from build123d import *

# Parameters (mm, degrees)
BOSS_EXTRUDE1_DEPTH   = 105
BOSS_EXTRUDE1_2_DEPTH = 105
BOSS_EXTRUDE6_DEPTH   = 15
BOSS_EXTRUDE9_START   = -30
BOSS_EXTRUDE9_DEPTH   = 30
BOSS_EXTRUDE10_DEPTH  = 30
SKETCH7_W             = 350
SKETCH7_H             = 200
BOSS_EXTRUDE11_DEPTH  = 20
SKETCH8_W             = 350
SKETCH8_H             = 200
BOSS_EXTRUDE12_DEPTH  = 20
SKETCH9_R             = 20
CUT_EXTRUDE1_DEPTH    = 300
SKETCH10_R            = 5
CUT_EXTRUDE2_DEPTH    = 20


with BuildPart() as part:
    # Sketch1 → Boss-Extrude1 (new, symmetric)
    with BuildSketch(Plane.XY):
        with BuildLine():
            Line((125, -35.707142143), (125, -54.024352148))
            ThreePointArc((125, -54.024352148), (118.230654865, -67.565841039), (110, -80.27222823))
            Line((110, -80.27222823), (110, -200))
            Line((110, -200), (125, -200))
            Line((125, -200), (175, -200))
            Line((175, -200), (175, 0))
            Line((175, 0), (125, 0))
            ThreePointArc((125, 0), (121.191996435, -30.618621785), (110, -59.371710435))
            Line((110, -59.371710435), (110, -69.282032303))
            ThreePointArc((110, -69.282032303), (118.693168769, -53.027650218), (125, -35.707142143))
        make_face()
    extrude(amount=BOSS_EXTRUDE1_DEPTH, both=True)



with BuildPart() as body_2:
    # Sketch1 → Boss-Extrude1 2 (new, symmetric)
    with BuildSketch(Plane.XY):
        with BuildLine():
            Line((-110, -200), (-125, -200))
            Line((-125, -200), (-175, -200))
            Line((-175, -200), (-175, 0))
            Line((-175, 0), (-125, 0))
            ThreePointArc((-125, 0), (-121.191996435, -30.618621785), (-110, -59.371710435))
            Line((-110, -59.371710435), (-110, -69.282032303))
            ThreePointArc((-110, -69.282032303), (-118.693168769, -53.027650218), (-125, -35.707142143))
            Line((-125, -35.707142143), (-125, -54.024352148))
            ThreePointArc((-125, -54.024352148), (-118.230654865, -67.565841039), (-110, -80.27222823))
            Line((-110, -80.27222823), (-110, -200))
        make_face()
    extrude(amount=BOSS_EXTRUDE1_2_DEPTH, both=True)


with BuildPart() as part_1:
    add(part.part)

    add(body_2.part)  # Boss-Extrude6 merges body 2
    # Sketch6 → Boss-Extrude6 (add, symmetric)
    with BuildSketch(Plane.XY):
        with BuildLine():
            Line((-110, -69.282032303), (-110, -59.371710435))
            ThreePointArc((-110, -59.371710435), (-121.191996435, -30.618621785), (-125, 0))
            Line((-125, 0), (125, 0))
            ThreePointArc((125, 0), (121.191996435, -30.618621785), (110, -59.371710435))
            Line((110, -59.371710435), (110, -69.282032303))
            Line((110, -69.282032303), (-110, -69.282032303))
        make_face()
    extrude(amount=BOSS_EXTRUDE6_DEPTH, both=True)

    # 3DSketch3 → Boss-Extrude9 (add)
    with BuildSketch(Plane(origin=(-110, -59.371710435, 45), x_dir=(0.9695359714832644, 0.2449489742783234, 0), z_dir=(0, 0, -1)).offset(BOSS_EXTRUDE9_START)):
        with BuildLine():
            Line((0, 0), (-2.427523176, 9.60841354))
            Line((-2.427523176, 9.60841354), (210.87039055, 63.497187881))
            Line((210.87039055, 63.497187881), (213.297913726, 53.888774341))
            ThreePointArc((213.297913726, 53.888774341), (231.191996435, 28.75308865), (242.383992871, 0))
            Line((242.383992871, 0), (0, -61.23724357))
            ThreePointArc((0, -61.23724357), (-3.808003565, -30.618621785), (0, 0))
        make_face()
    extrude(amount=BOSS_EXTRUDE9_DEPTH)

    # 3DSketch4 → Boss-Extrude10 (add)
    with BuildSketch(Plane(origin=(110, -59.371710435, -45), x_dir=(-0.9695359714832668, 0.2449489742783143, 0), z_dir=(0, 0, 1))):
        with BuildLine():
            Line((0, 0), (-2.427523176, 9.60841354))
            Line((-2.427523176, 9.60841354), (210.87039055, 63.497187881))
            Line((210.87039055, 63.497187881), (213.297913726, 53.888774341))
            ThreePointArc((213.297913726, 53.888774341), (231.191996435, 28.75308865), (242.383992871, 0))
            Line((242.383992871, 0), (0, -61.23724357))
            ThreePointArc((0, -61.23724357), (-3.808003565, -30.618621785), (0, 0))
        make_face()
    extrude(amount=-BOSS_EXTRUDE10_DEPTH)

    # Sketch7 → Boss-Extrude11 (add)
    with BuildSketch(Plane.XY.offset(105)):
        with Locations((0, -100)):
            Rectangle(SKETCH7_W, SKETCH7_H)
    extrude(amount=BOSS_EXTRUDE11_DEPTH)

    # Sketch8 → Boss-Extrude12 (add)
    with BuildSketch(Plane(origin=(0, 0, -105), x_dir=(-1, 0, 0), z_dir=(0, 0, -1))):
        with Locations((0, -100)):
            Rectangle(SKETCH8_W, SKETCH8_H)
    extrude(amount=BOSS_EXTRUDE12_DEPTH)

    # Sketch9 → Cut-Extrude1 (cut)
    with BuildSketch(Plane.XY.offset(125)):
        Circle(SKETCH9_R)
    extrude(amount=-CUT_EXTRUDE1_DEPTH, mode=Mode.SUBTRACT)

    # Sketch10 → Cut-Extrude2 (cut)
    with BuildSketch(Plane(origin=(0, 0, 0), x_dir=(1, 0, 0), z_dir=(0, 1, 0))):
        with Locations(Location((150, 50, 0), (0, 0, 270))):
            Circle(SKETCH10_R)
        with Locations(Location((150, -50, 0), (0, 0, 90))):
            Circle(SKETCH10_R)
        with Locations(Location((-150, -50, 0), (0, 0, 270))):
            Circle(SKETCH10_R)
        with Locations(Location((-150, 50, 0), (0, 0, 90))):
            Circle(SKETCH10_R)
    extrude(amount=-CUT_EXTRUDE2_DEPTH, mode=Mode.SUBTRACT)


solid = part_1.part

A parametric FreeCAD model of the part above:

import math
import FreeCAD as App
import Part
import Sketcher

V = App.Vector

doc = App.newDocument("Part")
params = doc.addObject("Spreadsheet::Sheet", "Params")
for row, (alias, value) in enumerate([
    ("sketch1_radius", "125 mm"),
    ("sketch1_radius2", "130 mm"),
    ("sketch1_width", "65 mm"),
    ("sketch1_width2", "50 mm"),
    ("sketch1_height", "200 mm"),
    ("pad1_length", "210 mm"),
    ("sketch2_radius", "130 mm"),
    ("sketch2_radius2", "125 mm"),
    ("sketch2_width", "65 mm"),
    ("sketch2_width2", "50 mm"),
    ("sketch2_height", "200 mm"),
    ("pad2_length", "210 mm"),
    ("sketch3_radius", "125 mm"),
    ("sketch3_width", "220 mm"),
    ("pad3_length", "30 mm"),
    ("sketch4_radius", "125 mm"),
    ("sketch4_width", "220 mm"),
    ("pad4_length", "30 mm"),
    ("sketch5_radius", "125 mm"),
    ("sketch5_width", "220 mm"),
    ("pad5_length", "30 mm"),
    ("sketch6_width", "350 mm"),
    ("sketch6_height", "200 mm"),
    ("pad6_length", "20 mm"),
    ("sketch7_width", "350 mm"),
    ("sketch7_height", "200 mm"),
    ("pad7_length", "20 mm"),
    ("sketch8_diameter", "40 mm"),
    ("pocket1_length", "300 mm"),
    ("sketch9_diameter", "10 mm"),
    ("pocket2_length", "20 mm"),
], start=1):
    params.set(f"A{row}", alias)
    params.set(f"B{row}", "=" + value)
    params.setAlias(f"B{row}", alias)

body = doc.addObject("PartDesign::Body", "Body")

sketch1 = doc.addObject("Sketcher::SketchObject", "Sketch")
body.addObject(sketch1)
sketch1.AttachmentSupport = (doc.XY_Plane, [""])
sketch1.MapMode = "FlatFace"
sketch1.addGeometry(Part.LineSegment(V(125, -36, 0), V(125, -54, 0)), False)
sketch1.addGeometry(Part.ArcOfCircle(Part.Circle(V(0, 0, 0), V(0, 0, 1), 136), math.radians(-36.12), math.radians(-23.37)), False)
sketch1.addGeometry(Part.LineSegment(V(110, -80, 0), V(110, -200, 0)), False)
sketch1.addGeometry(Part.LineSegment(V(110, -200, 0), V(175, -200, 0)), False)
sketch1.addGeometry(Part.LineSegment(V(175, -200, 0), V(175, 0, 0)), False)
sketch1.addGeometry(Part.LineSegment(V(175, 0, 0), V(125, 0, 0)), False)
sketch1.addGeometry(Part.ArcOfCircle(Part.Circle(V(0, 0, 0), V(0, 0, 1), 125), math.radians(-28), math.radians(0)), False)
sketch1.addGeometry(Part.LineSegment(V(110, -59, 0), V(110, -69, 0)), False)
sketch1.addGeometry(Part.ArcOfCircle(Part.Circle(V(0, 0, 0), V(0, 0, 1), 130), math.radians(-32.2), math.radians(-15.94)), False)
sketch1.addConstraint(Sketcher.Constraint("Coincident", 0, 2, 1, 2))
sketch1.addConstraint(Sketcher.Constraint("Coincident", 1, 1, 2, 1))
sketch1.addConstraint(Sketcher.Constraint("Coincident", 2, 2, 3, 1))
sketch1.addConstraint(Sketcher.Constraint("Coincident", 3, 2, 4, 1))
sketch1.addConstraint(Sketcher.Constraint("Coincident", 4, 2, 5, 1))
sketch1.addConstraint(Sketcher.Constraint("Coincident", 5, 2, 6, 2))
sketch1.addConstraint(Sketcher.Constraint("Coincident", 6, 1, 7, 1))
sketch1.addConstraint(Sketcher.Constraint("Coincident", 7, 2, 8, 1))
sketch1.addConstraint(Sketcher.Constraint("Coincident", 8, 2, 0, 1))
sketch1.addConstraint(Sketcher.Constraint("Vertical", 0))
sketch1.addConstraint(Sketcher.Constraint("Vertical", 2))
sketch1.addConstraint(Sketcher.Constraint("Horizontal", 3))
sketch1.addConstraint(Sketcher.Constraint("Vertical", 4))
sketch1.addConstraint(Sketcher.Constraint("Horizontal", 5))
sketch1.addConstraint(Sketcher.Constraint("Vertical", 7))
sketch1.addConstraint(Sketcher.Constraint("Coincident", 1, 3, -1, 1))
sketch1.addConstraint(Sketcher.Constraint("Coincident", 6, 3, -1, 1))
sketch1.addConstraint(Sketcher.Constraint("Coincident", 8, 3, -1, 1))
sketch1.addConstraint(Sketcher.Constraint("PointOnObject", 4, 2, -1))
sketch1.addConstraint(Sketcher.Constraint("Vertical", 0, 2, 5, 2))
sketch1.addConstraint(Sketcher.Constraint("Vertical", 2, 2, 6, 1))
sketch1.addConstraint(Sketcher.Constraint("Radius", 6, 125.0))
sketch1.addConstraint(Sketcher.Constraint("Radius", 8, 130.0))
sketch1.addConstraint(Sketcher.Constraint("DistanceX", 3, 1, 3, 2, 65.0))
sketch1.addConstraint(Sketcher.Constraint("DistanceX", 5, 2, 5, 1, 50.0))
sketch1.addConstraint(Sketcher.Constraint("DistanceY", 4, 1, 4, 2, 200.0))
sketch1.addConstraint(Sketcher.Constraint("Radius", 1, 136.175))
sketch1.setExpression("Constraints[21]", "Params.sketch1_radius")
sketch1.setExpression("Constraints[22]", "Params.sketch1_radius2")
sketch1.setExpression("Constraints[23]", "Params.sketch1_width")
sketch1.setExpression("Constraints[24]", "Params.sketch1_width2")
sketch1.setExpression("Constraints[25]", "Params.sketch1_height")
pad1 = doc.addObject("PartDesign::Pad", "Pad")
body.addObject(pad1)
pad1.Profile = sketch1
pad1.setExpression("Length", "Params.pad1_length")
pad1.Midplane = True
body2 = doc.addObject("PartDesign::Body", "Body001")

sketch2 = doc.addObject("Sketcher::SketchObject", "Sketch001")
body2.addObject(sketch2)
sketch2.AttachmentSupport = (doc.getObject("XY_Plane001"), [""])
sketch2.MapMode = "FlatFace"
sketch2.addGeometry(Part.LineSegment(V(-175, -200, 0), V(-110, -200, 0)), False)
sketch2.addGeometry(Part.LineSegment(V(-110, -200, 0), V(-110, -80, 0)), False)
sketch2.addGeometry(Part.ArcOfCircle(Part.Circle(V(0, 0, 0), V(0, 0, 1), 136), math.radians(-156.63), math.radians(-143.88)), False)
sketch2.addGeometry(Part.LineSegment(V(-125, -54, 0), V(-125, -36, 0)), False)
sketch2.addGeometry(Part.ArcOfCircle(Part.Circle(V(0, 0, 0), V(0, 0, 1), 130), math.radians(-164.06), math.radians(-147.8)), False)
sketch2.addGeometry(Part.LineSegment(V(-110, -69, 0), V(-110, -59, 0)), False)
sketch2.addGeometry(Part.ArcOfCircle(Part.Circle(V(0, 0, 0), V(0, 0, 1), 125), math.radians(-180), math.radians(-152)), False)
sketch2.addGeometry(Part.LineSegment(V(-125, 0, 0), V(-175, 0, 0)), False)
sketch2.addGeometry(Part.LineSegment(V(-175, 0, 0), V(-175, -200, 0)), False)
sketch2.addConstraint(Sketcher.Constraint("Coincident", 0, 2, 1, 1))
sketch2.addConstraint(Sketcher.Constraint("Coincident", 1, 2, 2, 2))
sketch2.addConstraint(Sketcher.Constraint("Coincident", 2, 1, 3, 1))
sketch2.addConstraint(Sketcher.Constraint("Coincident", 3, 2, 4, 1))
sketch2.addConstraint(Sketcher.Constraint("Coincident", 4, 2, 5, 1))
sketch2.addConstraint(Sketcher.Constraint("Coincident", 5, 2, 6, 2))
sketch2.addConstraint(Sketcher.Constraint("Coincident", 6, 1, 7, 1))
sketch2.addConstraint(Sketcher.Constraint("Coincident", 7, 2, 8, 1))
sketch2.addConstraint(Sketcher.Constraint("Coincident", 8, 2, 0, 1))
sketch2.addConstraint(Sketcher.Constraint("Horizontal", 0))
sketch2.addConstraint(Sketcher.Constraint("Vertical", 1))
sketch2.addConstraint(Sketcher.Constraint("Vertical", 3))
sketch2.addConstraint(Sketcher.Constraint("Vertical", 5))
sketch2.addConstraint(Sketcher.Constraint("Horizontal", 7))
sketch2.addConstraint(Sketcher.Constraint("Vertical", 8))
sketch2.addConstraint(Sketcher.Constraint("Coincident", 2, 3, -1, 1))
sketch2.addConstraint(Sketcher.Constraint("Coincident", 4, 3, -1, 1))
sketch2.addConstraint(Sketcher.Constraint("Coincident", 6, 3, -1, 1))
sketch2.addConstraint(Sketcher.Constraint("PointOnObject", 6, 1, -1))
sketch2.addConstraint(Sketcher.Constraint("Vertical", 1, 2, 4, 2))
sketch2.addConstraint(Sketcher.Constraint("Vertical", 3, 2, 6, 1))
sketch2.addConstraint(Sketcher.Constraint("Radius", 4, 130.0))
sketch2.addConstraint(Sketcher.Constraint("Radius", 6, 125.0))
sketch2.addConstraint(Sketcher.Constraint("DistanceX", 0, 1, 0, 2, 65.0))
sketch2.addConstraint(Sketcher.Constraint("DistanceX", 7, 2, 7, 1, 50.0))
sketch2.addConstraint(Sketcher.Constraint("DistanceY", 8, 2, 8, 1, 200.0))
sketch2.addConstraint(Sketcher.Constraint("Radius", 2, 136.175))
sketch2.setExpression("Constraints[21]", "Params.sketch2_radius")
sketch2.setExpression("Constraints[22]", "Params.sketch2_radius2")
sketch2.setExpression("Constraints[23]", "Params.sketch2_width")
sketch2.setExpression("Constraints[24]", "Params.sketch2_width2")
sketch2.setExpression("Constraints[25]", "Params.sketch2_height")
pad2 = doc.addObject("PartDesign::Pad", "Pad001")
body2.addObject(pad2)
pad2.Profile = sketch2
pad2.setExpression("Length", "Params.pad2_length")
pad2.Midplane = True
body.AllowCompound = True
doc.recompute()

boolean = doc.addObject("PartDesign::Boolean", "Boolean")
body.addObject(boolean)
boolean.Type = "Fuse"
boolean.addObjects([body2])

sketch3 = doc.addObject("Sketcher::SketchObject", "Sketch002")
body.addObject(sketch3)
sketch3.AttachmentSupport = (doc.XY_Plane, [""])
sketch3.MapMode = "FlatFace"
sketch3.addGeometry(Part.LineSegment(V(-110, -59, 0), V(-110, -69, 0)), False)
sketch3.addGeometry(Part.LineSegment(V(-110, -69, 0), V(110, -69, 0)), False)
sketch3.addGeometry(Part.LineSegment(V(110, -69, 0), V(110, -59, 0)), False)
sketch3.addGeometry(Part.ArcOfCircle(Part.Circle(V(0, 0, 0), V(0, 0, 1), 125), math.radians(-28), math.radians(0)), False)
sketch3.addGeometry(Part.LineSegment(V(125, 0, 0), V(-125, 0, 0)), False)
sketch3.addGeometry(Part.ArcOfCircle(Part.Circle(V(0, 0, 0), V(0, 0, 1), 125), math.radians(-180), math.radians(-152)), False)
sketch3.addConstraint(Sketcher.Constraint("Coincident", 0, 2, 1, 1))
sketch3.addConstraint(Sketcher.Constraint("Coincident", 1, 2, 2, 1))
sketch3.addConstraint(Sketcher.Constraint("Coincident", 2, 2, 3, 1))
sketch3.addConstraint(Sketcher.Constraint("Coincident", 3, 2, 4, 1))
sketch3.addConstraint(Sketcher.Constraint("Coincident", 4, 2, 5, 1))
sketch3.addConstraint(Sketcher.Constraint("Coincident", 5, 2, 0, 1))
sketch3.addConstraint(Sketcher.Constraint("Vertical", 0))
sketch3.addConstraint(Sketcher.Constraint("Horizontal", 1))
sketch3.addConstraint(Sketcher.Constraint("Vertical", 2))
sketch3.addConstraint(Sketcher.Constraint("Horizontal", 4))
sketch3.addConstraint(Sketcher.Constraint("Coincident", 3, 3, -1, 1))
sketch3.addConstraint(Sketcher.Constraint("Coincident", 5, 3, -1, 1))
sketch3.addConstraint(Sketcher.Constraint("Equal", 3, 5))
sketch3.addConstraint(Sketcher.Constraint("PointOnObject", 3, 2, -1))
sketch3.addConstraint(Sketcher.Constraint("Horizontal", 2, 2, 5, 2))
sketch3.addConstraint(Sketcher.Constraint("Radius", 3, 125.0))
sketch3.addConstraint(Sketcher.Constraint("DistanceX", 1, 1, 1, 2, 220.0))
sketch3.addConstraint(Sketcher.Constraint("DistanceY", 0, 2, 0, 1, 9.910322))
sketch3.setExpression("Constraints[15]", "Params.sketch3_radius")
sketch3.setExpression("Constraints[16]", "Params.sketch3_width")
pad3 = doc.addObject("PartDesign::Pad", "Pad002")
body.addObject(pad3)
pad3.Profile = sketch3
pad3.setExpression("Length", "Params.pad3_length")
pad3.Midplane = True

sketch4 = doc.addObject("Sketcher::SketchObject", "Sketch003")
body.addObject(sketch4)
sketch4.AttachmentSupport = (doc.XY_Plane, [""])
sketch4.MapMode = "FlatFace"
sketch4.AttachmentOffset = App.Placement(V(0, 0, 75), App.Rotation())
sketch4.addGeometry(Part.LineSegment(V(-110, -69, 0), V(-110, -59, 0)), False)
sketch4.addGeometry(Part.ArcOfCircle(Part.Circle(V(0, 0, 0), V(0, 0, 1), 125), math.radians(180), math.radians(208)), False)
sketch4.addGeometry(Part.LineSegment(V(-125, 0, 0), V(125, 0, 0)), False)
sketch4.addGeometry(Part.ArcOfCircle(Part.Circle(V(0, 0, 0), V(0, 0, 1), 125), math.radians(-28), math.radians(0)), False)
sketch4.addGeometry(Part.LineSegment(V(110, -59, 0), V(110, -69, 0)), False)
sketch4.addGeometry(Part.LineSegment(V(110, -69, 0), V(-110, -69, 0)), False)
sketch4.addConstraint(Sketcher.Constraint("Coincident", 0, 2, 1, 2))
sketch4.addConstraint(Sketcher.Constraint("Coincident", 1, 1, 2, 1))
sketch4.addConstraint(Sketcher.Constraint("Coincident", 2, 2, 3, 2))
sketch4.addConstraint(Sketcher.Constraint("Coincident", 3, 1, 4, 1))
sketch4.addConstraint(Sketcher.Constraint("Coincident", 4, 2, 5, 1))
sketch4.addConstraint(Sketcher.Constraint("Coincident", 5, 2, 0, 1))
sketch4.addConstraint(Sketcher.Constraint("Vertical", 0))
sketch4.addConstraint(Sketcher.Constraint("Horizontal", 2))
sketch4.addConstraint(Sketcher.Constraint("Vertical", 4))
sketch4.addConstraint(Sketcher.Constraint("Horizontal", 5))
sketch4.addConstraint(Sketcher.Constraint("Coincident", 1, 3, -1, 1))
sketch4.addConstraint(Sketcher.Constraint("Coincident", 3, 3, -1, 1))
sketch4.addConstraint(Sketcher.Constraint("Equal", 1, 3))
sketch4.addConstraint(Sketcher.Constraint("PointOnObject", 1, 1, -1))
sketch4.addConstraint(Sketcher.Constraint("Horizontal", 0, 2, 3, 1))
sketch4.addConstraint(Sketcher.Constraint("Radius", 1, 125.0))
sketch4.addConstraint(Sketcher.Constraint("DistanceX", 5, 2, 5, 1, 220.0))
sketch4.addConstraint(Sketcher.Constraint("DistanceY", 0, 1, 0, 2, 9.910322))
sketch4.setExpression("Constraints[15]", "Params.sketch4_radius")
sketch4.setExpression("Constraints[16]", "Params.sketch4_width")
pad4 = doc.addObject("PartDesign::Pad", "Pad003")
body.addObject(pad4)
pad4.Profile = sketch4
pad4.setExpression("Length", "Params.pad4_length")
pad4.Reversed = True

sketch5 = doc.addObject("Sketcher::SketchObject", "Sketch004")
body.addObject(sketch5)
sketch5.AttachmentSupport = (doc.XY_Plane, [""])
sketch5.MapMode = "FlatFace"
sketch5.AttachmentOffset = App.Placement(V(0, 0, -45), App.Rotation())
sketch5.addGeometry(Part.LineSegment(V(110, -69, 0), V(110, -59, 0)), False)
sketch5.addGeometry(Part.ArcOfCircle(Part.Circle(V(0, 0, 0), V(0, 0, 1), 125), math.radians(-28), math.radians(0)), False)
sketch5.addGeometry(Part.LineSegment(V(125, 0, 0), V(-125, 0, 0)), False)
sketch5.addGeometry(Part.ArcOfCircle(Part.Circle(V(0, 0, 0), V(0, 0, 1), 125), math.radians(-180), math.radians(-152)), False)
sketch5.addGeometry(Part.LineSegment(V(-110, -59, 0), V(-110, -69, 0)), False)
sketch5.addGeometry(Part.LineSegment(V(-110, -69, 0), V(110, -69, 0)), False)
sketch5.addConstraint(Sketcher.Constraint("Coincident", 0, 2, 1, 1))
sketch5.addConstraint(Sketcher.Constraint("Coincident", 1, 2, 2, 1))
sketch5.addConstraint(Sketcher.Constraint("Coincident", 2, 2, 3, 1))
sketch5.addConstraint(Sketcher.Constraint("Coincident", 3, 2, 4, 1))
sketch5.addConstraint(Sketcher.Constraint("Coincident", 4, 2, 5, 1))
sketch5.addConstraint(Sketcher.Constraint("Coincident", 5, 2, 0, 1))
sketch5.addConstraint(Sketcher.Constraint("Vertical", 0))
sketch5.addConstraint(Sketcher.Constraint("Horizontal", 2))
sketch5.addConstraint(Sketcher.Constraint("Vertical", 4))
sketch5.addConstraint(Sketcher.Constraint("Horizontal", 5))
sketch5.addConstraint(Sketcher.Constraint("Coincident", 1, 3, -1, 1))
sketch5.addConstraint(Sketcher.Constraint("Coincident", 3, 3, -1, 1))
sketch5.addConstraint(Sketcher.Constraint("Equal", 1, 3))
sketch5.addConstraint(Sketcher.Constraint("PointOnObject", 1, 2, -1))
sketch5.addConstraint(Sketcher.Constraint("Horizontal", 0, 2, 3, 2))
sketch5.addConstraint(Sketcher.Constraint("Radius", 1, 125.0))
sketch5.addConstraint(Sketcher.Constraint("DistanceX", 5, 1, 5, 2, 220.0))
sketch5.addConstraint(Sketcher.Constraint("DistanceY", 0, 1, 0, 2, 9.910322))
sketch5.setExpression("Constraints[15]", "Params.sketch5_radius")
sketch5.setExpression("Constraints[16]", "Params.sketch5_width")
pad5 = doc.addObject("PartDesign::Pad", "Pad004")
body.addObject(pad5)
pad5.Profile = sketch5
pad5.setExpression("Length", "Params.pad5_length")
pad5.Reversed = True

sketch6 = doc.addObject("Sketcher::SketchObject", "Sketch005")
body.addObject(sketch6)
sketch6.AttachmentSupport = (doc.XY_Plane, [""])
sketch6.MapMode = "FlatFace"
sketch6.AttachmentOffset = App.Placement(V(0, 0, 105), App.Rotation())
sketch6.addGeometry(Part.LineSegment(V(-175, 0, 0), V(-175, -200, 0)), False)
sketch6.addGeometry(Part.LineSegment(V(-175, -200, 0), V(175, -200, 0)), False)
sketch6.addGeometry(Part.LineSegment(V(175, -200, 0), V(175, 0, 0)), False)
sketch6.addGeometry(Part.LineSegment(V(175, 0, 0), V(-175, 0, 0)), False)
sketch6.addConstraint(Sketcher.Constraint("Coincident", 0, 2, 1, 1))
sketch6.addConstraint(Sketcher.Constraint("Coincident", 1, 2, 2, 1))
sketch6.addConstraint(Sketcher.Constraint("Coincident", 2, 2, 3, 1))
sketch6.addConstraint(Sketcher.Constraint("Coincident", 3, 2, 0, 1))
sketch6.addConstraint(Sketcher.Constraint("Vertical", 0))
sketch6.addConstraint(Sketcher.Constraint("Horizontal", 1))
sketch6.addConstraint(Sketcher.Constraint("Vertical", 2))
sketch6.addConstraint(Sketcher.Constraint("Horizontal", 3))
sketch6.addConstraint(Sketcher.Constraint("Symmetric", 2, 2, 3, 2, -1, 1))
sketch6.addConstraint(Sketcher.Constraint("DistanceX", 1, 1, 1, 2, 350.0))
sketch6.addConstraint(Sketcher.Constraint("DistanceY", 0, 2, 0, 1, 200.0))
sketch6.setExpression("Constraints[9]", "Params.sketch6_width")
sketch6.setExpression("Constraints[10]", "Params.sketch6_height")
pad6 = doc.addObject("PartDesign::Pad", "Pad005")
body.addObject(pad6)
pad6.Profile = sketch6
pad6.setExpression("Length", "Params.pad6_length")

sketch7 = doc.addObject("Sketcher::SketchObject", "Sketch006")
body.addObject(sketch7)
sketch7.AttachmentSupport = (doc.XY_Plane, [""])
sketch7.MapMode = "FlatFace"
sketch7.AttachmentOffset = App.Placement(V(0, 0, -105), App.Rotation())
sketch7.addGeometry(Part.LineSegment(V(175, 0, 0), V(175, -200, 0)), False)
sketch7.addGeometry(Part.LineSegment(V(175, -200, 0), V(-175, -200, 0)), False)
sketch7.addGeometry(Part.LineSegment(V(-175, -200, 0), V(-175, 0, 0)), False)
sketch7.addGeometry(Part.LineSegment(V(-175, 0, 0), V(175, 0, 0)), False)
sketch7.addConstraint(Sketcher.Constraint("Coincident", 0, 2, 1, 1))
sketch7.addConstraint(Sketcher.Constraint("Coincident", 1, 2, 2, 1))
sketch7.addConstraint(Sketcher.Constraint("Coincident", 2, 2, 3, 1))
sketch7.addConstraint(Sketcher.Constraint("Coincident", 3, 2, 0, 1))
sketch7.addConstraint(Sketcher.Constraint("Vertical", 0))
sketch7.addConstraint(Sketcher.Constraint("Horizontal", 1))
sketch7.addConstraint(Sketcher.Constraint("Vertical", 2))
sketch7.addConstraint(Sketcher.Constraint("Horizontal", 3))
sketch7.addConstraint(Sketcher.Constraint("Symmetric", 2, 2, 3, 2, -1, 1))
sketch7.addConstraint(Sketcher.Constraint("DistanceX", 1, 2, 1, 1, 350.0))
sketch7.addConstraint(Sketcher.Constraint("DistanceY", 0, 2, 0, 1, 200.0))
sketch7.setExpression("Constraints[9]", "Params.sketch7_width")
sketch7.setExpression("Constraints[10]", "Params.sketch7_height")
pad7 = doc.addObject("PartDesign::Pad", "Pad006")
body.addObject(pad7)
pad7.Profile = sketch7
pad7.setExpression("Length", "Params.pad7_length")
pad7.Reversed = True

sketch8 = doc.addObject("Sketcher::SketchObject", "Sketch007")
body.addObject(sketch8)
sketch8.AttachmentSupport = (doc.XY_Plane, [""])
sketch8.MapMode = "FlatFace"
sketch8.AttachmentOffset = App.Placement(V(0, 0, 125), App.Rotation())
sketch8.addGeometry(Part.Circle(V(0, 0, 0), V(0, 0, 1), 20), False)
sketch8.addConstraint(Sketcher.Constraint("Coincident", 0, 3, -1, 1))
sketch8.addConstraint(Sketcher.Constraint("Diameter", 0, 40.0))
sketch8.setExpression("Constraints[1]", "Params.sketch8_diameter")
pocket1 = doc.addObject("PartDesign::Pocket", "Pocket")
body.addObject(pocket1)
pocket1.Profile = sketch8
pocket1.setExpression("Length", "Params.pocket1_length")

sketch9 = doc.addObject("Sketcher::SketchObject", "Sketch008")
body.addObject(sketch9)
sketch9.AttachmentSupport = (doc.XZ_Plane, [""])
sketch9.MapMode = "FlatFace"
sketch9.addGeometry(Part.Circle(V(150, -50, 0), V(0, 0, 1), 5), False)
sketch9.addGeometry(Part.Circle(V(150, 50, 0), V(0, 0, 1), 5), False)
sketch9.addGeometry(Part.Circle(V(-150, 50, 0), V(0, 0, 1), 5), False)
sketch9.addGeometry(Part.Circle(V(-150, -50, 0), V(0, 0, 1), 5), False)
sketch9.addConstraint(Sketcher.Constraint("Equal", 0, 1))
sketch9.addConstraint(Sketcher.Constraint("Equal", 1, 2))
sketch9.addConstraint(Sketcher.Constraint("Equal", 2, 3))
sketch9.addConstraint(Sketcher.Constraint("Symmetric", 0, 3, 2, 3, -1, 1))
sketch9.addConstraint(Sketcher.Constraint("Symmetric", 1, 3, 3, 3, -1, 1))
sketch9.addConstraint(Sketcher.Constraint("Symmetric", 1, 3, 2, 3, -2))
sketch9.addConstraint(Sketcher.Constraint("Diameter", 0, 10.0))
sketch9.addConstraint(Sketcher.Constraint("DistanceX", -1, 1, 0, 3, 150.0))
sketch9.addConstraint(Sketcher.Constraint("DistanceY", 0, 3, -1, 1, 50.0))
sketch9.setExpression("Constraints[6]", "Params.sketch9_diameter")
pocket2 = doc.addObject("PartDesign::Pocket", "Pocket001")
body.addObject(pocket2)
pocket2.Profile = sketch9
pocket2.setExpression("Length", "Params.pocket2_length")
pocket2.Reversed = True

doc.recompute()
